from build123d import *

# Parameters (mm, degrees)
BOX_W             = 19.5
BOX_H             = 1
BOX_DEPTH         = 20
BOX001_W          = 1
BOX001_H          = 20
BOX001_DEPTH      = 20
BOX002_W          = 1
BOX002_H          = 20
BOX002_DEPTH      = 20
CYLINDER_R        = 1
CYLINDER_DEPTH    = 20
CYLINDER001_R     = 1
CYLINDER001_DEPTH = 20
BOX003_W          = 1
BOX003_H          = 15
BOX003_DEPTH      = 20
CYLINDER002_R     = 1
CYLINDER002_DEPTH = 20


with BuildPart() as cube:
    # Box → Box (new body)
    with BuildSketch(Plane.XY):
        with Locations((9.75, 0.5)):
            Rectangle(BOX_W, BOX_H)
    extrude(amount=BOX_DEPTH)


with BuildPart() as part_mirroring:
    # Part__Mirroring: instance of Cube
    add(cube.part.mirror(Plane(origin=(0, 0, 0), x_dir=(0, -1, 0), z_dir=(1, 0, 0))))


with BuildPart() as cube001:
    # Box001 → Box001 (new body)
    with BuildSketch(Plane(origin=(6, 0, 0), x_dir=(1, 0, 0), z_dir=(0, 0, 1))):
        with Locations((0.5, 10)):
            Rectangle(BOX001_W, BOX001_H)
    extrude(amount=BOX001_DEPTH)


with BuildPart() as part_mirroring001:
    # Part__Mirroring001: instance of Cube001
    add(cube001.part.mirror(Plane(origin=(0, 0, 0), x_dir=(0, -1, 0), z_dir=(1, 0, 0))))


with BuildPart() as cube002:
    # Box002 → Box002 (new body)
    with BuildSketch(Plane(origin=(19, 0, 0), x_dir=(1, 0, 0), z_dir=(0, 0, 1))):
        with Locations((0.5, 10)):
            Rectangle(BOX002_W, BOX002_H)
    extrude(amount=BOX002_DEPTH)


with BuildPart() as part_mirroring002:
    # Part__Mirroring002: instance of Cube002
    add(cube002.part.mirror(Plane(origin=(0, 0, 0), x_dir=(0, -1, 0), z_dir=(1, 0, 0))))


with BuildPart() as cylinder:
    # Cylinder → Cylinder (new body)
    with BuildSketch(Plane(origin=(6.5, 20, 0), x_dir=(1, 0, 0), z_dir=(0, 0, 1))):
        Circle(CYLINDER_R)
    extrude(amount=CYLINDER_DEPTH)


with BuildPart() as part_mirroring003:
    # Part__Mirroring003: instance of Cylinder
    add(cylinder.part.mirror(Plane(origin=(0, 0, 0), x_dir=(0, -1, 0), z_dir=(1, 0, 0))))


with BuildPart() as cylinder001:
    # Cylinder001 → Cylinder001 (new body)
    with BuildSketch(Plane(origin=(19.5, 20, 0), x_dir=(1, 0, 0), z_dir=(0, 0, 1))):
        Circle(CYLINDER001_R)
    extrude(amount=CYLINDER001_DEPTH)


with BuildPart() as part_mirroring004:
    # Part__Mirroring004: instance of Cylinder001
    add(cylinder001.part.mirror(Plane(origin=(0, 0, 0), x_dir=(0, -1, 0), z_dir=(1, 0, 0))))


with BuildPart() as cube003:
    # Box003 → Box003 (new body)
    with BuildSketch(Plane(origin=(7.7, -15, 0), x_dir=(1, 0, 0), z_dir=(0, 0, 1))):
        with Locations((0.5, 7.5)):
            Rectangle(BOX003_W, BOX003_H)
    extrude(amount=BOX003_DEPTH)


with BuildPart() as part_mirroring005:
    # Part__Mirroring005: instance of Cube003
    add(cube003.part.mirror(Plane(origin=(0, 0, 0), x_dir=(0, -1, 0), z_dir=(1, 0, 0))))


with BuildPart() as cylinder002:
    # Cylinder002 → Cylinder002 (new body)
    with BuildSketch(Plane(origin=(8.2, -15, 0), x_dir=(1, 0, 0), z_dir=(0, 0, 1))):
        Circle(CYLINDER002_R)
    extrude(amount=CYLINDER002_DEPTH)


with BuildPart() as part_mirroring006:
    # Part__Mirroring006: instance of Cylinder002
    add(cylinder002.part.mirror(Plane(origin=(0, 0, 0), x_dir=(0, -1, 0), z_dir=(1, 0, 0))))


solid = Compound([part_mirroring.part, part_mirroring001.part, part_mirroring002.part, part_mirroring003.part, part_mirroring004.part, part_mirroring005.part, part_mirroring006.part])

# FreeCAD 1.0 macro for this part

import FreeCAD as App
import Part
import Sketcher
from FreeCAD import Vector


def add_polygon(sketch, points):
    """Adds a closed chain of lines whose ends are joined by coincident constraints."""
    first, n = sketch.GeometryCount, len(points)
    for a, b in zip(points, points[1:] + points[:1]):
        sketch.addGeometry(Part.LineSegment(App.Vector(*a, 0), App.Vector(*b, 0)), False)
    for i in range(n):
        sketch.addConstraint(Sketcher.Constraint("Coincident", first + i, 2, first + (i + 1) % n, 1))

doc = App.newDocument("Part")
body = doc.addObject("PartDesign::Body", "Body")

# Sketch on XY plane
sketch1 = body.newObject("Sketcher::SketchObject", "Sketch")
sketch1.AttachmentSupport = (doc.getObject("XY_Plane"), [""])
sketch1.MapMode = "FlatFace"
add_polygon(sketch1, [(0, 1), (0, 0), (19.5, 0), (19.5, 1)])  # lines 0-3
sketch1.addConstraint([
    Sketcher.Constraint("Vertical", 0),
    Sketcher.Constraint("Horizontal", 1),
    Sketcher.Constraint("Vertical", 2),
    Sketcher.Constraint("Horizontal", 3),
    Sketcher.Constraint("Coincident", 0, 2, -1, 1),
    Sketcher.Constraint("DistanceY", 0, 2, 0, 1, 1.0),
    Sketcher.Constraint("DistanceX", 1, 1, 1, 2, 19.5),
])
pad1 = body.newObject("PartDesign::Pad", "Pad")
pad1.Profile = sketch1
pad1.Length = 20
body2 = doc.addObject("PartDesign::Body", "Body001")
doc.recompute()

mirroring = doc.addObject("Part::Mirroring", "Mirroring")
mirroring.Source = body
mirroring.Base = Vector(0, 0, 0)
mirroring.Normal = Vector(1, 0, 0)
body2.BaseFeature = mirroring
doc.recompute()
body3 = doc.addObject("PartDesign::Body", "Body002")

# Sketch on XY plane
sketch2 = body3.newObject("Sketcher::SketchObject", "Sketch001")
sketch2.AttachmentSupport = (doc.getObject("XY_Plane002"), [""])
sketch2.MapMode = "FlatFace"
add_polygon(sketch2, [(6, 20), (6, 0), (7, 0), (7, 20)])  # lines 0-3
sketch2.addConstraint([
    Sketcher.Constraint("Vertical", 0),
    Sketcher.Constraint("Horizontal", 1),
    Sketcher.Constraint("Vertical", 2),
    Sketcher.Constraint("Horizontal", 3),
    Sketcher.Constraint("PointOnObject", 0, 2, -1),
    Sketcher.Constraint("DistanceX", 1, 1, 1, 2, 1.0),
    Sketcher.Constraint("DistanceY", 0, 2, 0, 1, 20.0),
    Sketcher.Constraint("DistanceX", -1, 1, 0, 2, 6.0),
])
pad2 = body3.newObject("PartDesign::Pad", "Pad001")
pad2.Profile = sketch2
pad2.Length = 20
body4 = doc.addObject("PartDesign::Body", "Body003")
doc.recompute()

mirroring2 = doc.addObject("Part::Mirroring", "Mirroring001")
mirroring2.Source = body3
mirroring2.Base = Vector(0, 0, 0)
mirroring2.Normal = Vector(1, 0, 0)
body4.BaseFeature = mirroring2
doc.recompute()
body5 = doc.addObject("PartDesign::Body", "Body004")

# Sketch on XY plane
sketch3 = body5.newObject("Sketcher::SketchObject", "Sketch002")
sketch3.AttachmentSupport = (doc.getObject("XY_Plane004"), [""])
sketch3.MapMode = "FlatFace"
add_polygon(sketch3, [(19, 20), (19, 0), (20, 0), (20, 20)])  # lines 0-3
sketch3.addConstraint([
    Sketcher.Constraint("Vertical", 0),
    Sketcher.Constraint("Horizontal", 1),
    Sketcher.Constraint("Vertical", 2),
    Sketcher.Constraint("Horizontal", 3),
    Sketcher.Constraint("PointOnObject", 0, 2, -1),
    Sketcher.Constraint("DistanceX", 1, 1, 1, 2, 1.0),
    Sketcher.Constraint("DistanceY", 0, 2, 0, 1, 20.0),
    Sketcher.Constraint("DistanceX", -1, 1, 0, 2, 19.0),
])
pad3 = body5.newObject("PartDesign::Pad", "Pad002")
pad3.Profile = sketch3
pad3.Length = 20
body6 = doc.addObject("PartDesign::Body", "Body005")
doc.recompute()

mirroring3 = doc.addObject("Part::Mirroring", "Mirroring002")
mirroring3.Source = body5
mirroring3.Base = Vector(0, 0, 0)
mirroring3.Normal = Vector(1, 0, 0)
body6.BaseFeature = mirroring3
doc.recompute()
body7 = doc.addObject("PartDesign::Body", "Body006")

# Sketch on XY plane
sketch4 = body7.newObject("Sketcher::SketchObject", "Sketch003")
sketch4.AttachmentSupport = (doc.getObject("XY_Plane006"), [""])
sketch4.MapMode = "FlatFace"
sketch4.addGeometry(Part.Circle(Vector(6.5, 20, 0), Vector(0, 0, 1), 1), False)
sketch4.addConstraint([
    Sketcher.Constraint("Diameter", 0, 2.0),
    Sketcher.Constraint("DistanceY", -1, 1, 0, 3, 20.0),
    Sketcher.Constraint("DistanceX", -1, 1, 0, 3, 6.5),
])
pad4 = body7.newObject("PartDesign::Pad", "Pad003")
pad4.Profile = sketch4
pad4.Length = 20
body8 = doc.addObject("PartDesign::Body", "Body007")
doc.recompute()

mirroring4 = doc.addObject("Part::Mirroring", "Mirroring003")
mirroring4.Source = body7
mirroring4.Base = Vector(0, 0, 0)
mirroring4.Normal = Vector(1, 0, 0)
body8.BaseFeature = mirroring4
doc.recompute()
body9 = doc.addObject("PartDesign::Body", "Body008")

# Sketch on XY plane
sketch5 = body9.newObject("Sketcher::SketchObject", "Sketch004")
sketch5.AttachmentSupport = (doc.getObject("XY_Plane008"), [""])
sketch5.MapMode = "FlatFace"
sketch5.addGeometry(Part.Circle(Vector(19.5, 20, 0), Vector(0, 0, 1), 1), False)
sketch5.addConstraint([
    Sketcher.Constraint("Diameter", 0, 2.0),
    Sketcher.Constraint("DistanceY", -1, 1, 0, 3, 20.0),
    Sketcher.Constraint("DistanceX", -1, 1, 0, 3, 19.5),
])
pad5 = body9.newObject("PartDesign::Pad", "Pad004")
pad5.Profile = sketch5
pad5.Length = 20
body10 = doc.addObject("PartDesign::Body", "Body009")
doc.recompute()

mirroring5 = doc.addObject("Part::Mirroring", "Mirroring004")
mirroring5.Source = body9
mirroring5.Base = Vector(0, 0, 0)
mirroring5.Normal = Vector(1, 0, 0)
body10.BaseFeature = mirroring5
doc.recompute()
body11 = doc.addObject("PartDesign::Body", "Body010")

# Sketch on XY plane
sketch6 = body11.newObject("Sketcher::SketchObject", "Sketch005")
sketch6.AttachmentSupport = (doc.getObject("XY_Plane010"), [""])
sketch6.MapMode = "FlatFace"
add_polygon(sketch6, [(7.7, 0), (7.7, -15), (8.7, -15), (8.7, 0)])  # lines 0-3
sketch6.addConstraint([
    Sketcher.Constraint("Vertical", 0),
    Sketcher.Constraint("Horizontal", 1),
    Sketcher.Constraint("Vertical", 2),
    Sketcher.Constraint("Horizontal", 3),
    Sketcher.Constraint("PointOnObject", 2, 2, -1),
    Sketcher.Constraint("DistanceX", 1, 1, 1, 2, 1.0),
    Sketcher.Constraint("DistanceY", 0, 2, 0, 1, 15.0),
    Sketcher.Constraint("DistanceX", -1, 1, 0, 2, 7.7),
])
pad6 = body11.newObject("PartDesign::Pad", "Pad005")
pad6.Profile = sketch6
pad6.Length = 20
body12 = doc.addObject("PartDesign::Body", "Body011")
doc.recompute()

mirroring6 = doc.addObject("Part::Mirroring", "Mirroring005")
mirroring6.Source = body11
mirroring6.Base = Vector(0, 0, 0)
mirroring6.Normal = Vector(1, 0, 0)
body12.BaseFeature = mirroring6
doc.recompute()
body13 = doc.addObject("PartDesign::Body", "Body012")

# Sketch on XY plane
sketch7 = body13.newObject("Sketcher::SketchObject", "Sketch006")
sketch7.AttachmentSupport = (doc.getObject("XY_Plane012"), [""])
sketch7.MapMode = "FlatFace"
sketch7.addGeometry(Part.Circle(Vector(8.2, -15, 0), Vector(0, 0, 1), 1), False)
sketch7.addConstraint([
    Sketcher.Constraint("Diameter", 0, 2.0),
    Sketcher.Constraint("DistanceY", 0, 3, -1, 1, 15.0),
    Sketcher.Constraint("DistanceX", -1, 1, 0, 3, 8.2),
])
pad7 = body13.newObject("PartDesign::Pad", "Pad006")
pad7.Profile = sketch7
pad7.Length = 20
body14 = doc.addObject("PartDesign::Body", "Body013")
doc.recompute()

mirroring7 = doc.addObject("Part::Mirroring", "Mirroring006")
mirroring7.Source = body13
mirroring7.Base = Vector(0, 0, 0)
mirroring7.Normal = Vector(1, 0, 0)
body14.BaseFeature = mirroring7
doc.recompute()
body.Visibility = False
body3.Visibility = False
body5.Visibility = False
body7.Visibility = False
body9.Visibility = False
body11.Visibility = False
body13.Visibility = False
mirroring.Visibility = False
mirroring2.Visibility = False
mirroring3.Visibility = False
mirroring4.Visibility = False
mirroring5.Visibility = False
mirroring6.Visibility = False
mirroring7.Visibility = False

doc.recompute()
